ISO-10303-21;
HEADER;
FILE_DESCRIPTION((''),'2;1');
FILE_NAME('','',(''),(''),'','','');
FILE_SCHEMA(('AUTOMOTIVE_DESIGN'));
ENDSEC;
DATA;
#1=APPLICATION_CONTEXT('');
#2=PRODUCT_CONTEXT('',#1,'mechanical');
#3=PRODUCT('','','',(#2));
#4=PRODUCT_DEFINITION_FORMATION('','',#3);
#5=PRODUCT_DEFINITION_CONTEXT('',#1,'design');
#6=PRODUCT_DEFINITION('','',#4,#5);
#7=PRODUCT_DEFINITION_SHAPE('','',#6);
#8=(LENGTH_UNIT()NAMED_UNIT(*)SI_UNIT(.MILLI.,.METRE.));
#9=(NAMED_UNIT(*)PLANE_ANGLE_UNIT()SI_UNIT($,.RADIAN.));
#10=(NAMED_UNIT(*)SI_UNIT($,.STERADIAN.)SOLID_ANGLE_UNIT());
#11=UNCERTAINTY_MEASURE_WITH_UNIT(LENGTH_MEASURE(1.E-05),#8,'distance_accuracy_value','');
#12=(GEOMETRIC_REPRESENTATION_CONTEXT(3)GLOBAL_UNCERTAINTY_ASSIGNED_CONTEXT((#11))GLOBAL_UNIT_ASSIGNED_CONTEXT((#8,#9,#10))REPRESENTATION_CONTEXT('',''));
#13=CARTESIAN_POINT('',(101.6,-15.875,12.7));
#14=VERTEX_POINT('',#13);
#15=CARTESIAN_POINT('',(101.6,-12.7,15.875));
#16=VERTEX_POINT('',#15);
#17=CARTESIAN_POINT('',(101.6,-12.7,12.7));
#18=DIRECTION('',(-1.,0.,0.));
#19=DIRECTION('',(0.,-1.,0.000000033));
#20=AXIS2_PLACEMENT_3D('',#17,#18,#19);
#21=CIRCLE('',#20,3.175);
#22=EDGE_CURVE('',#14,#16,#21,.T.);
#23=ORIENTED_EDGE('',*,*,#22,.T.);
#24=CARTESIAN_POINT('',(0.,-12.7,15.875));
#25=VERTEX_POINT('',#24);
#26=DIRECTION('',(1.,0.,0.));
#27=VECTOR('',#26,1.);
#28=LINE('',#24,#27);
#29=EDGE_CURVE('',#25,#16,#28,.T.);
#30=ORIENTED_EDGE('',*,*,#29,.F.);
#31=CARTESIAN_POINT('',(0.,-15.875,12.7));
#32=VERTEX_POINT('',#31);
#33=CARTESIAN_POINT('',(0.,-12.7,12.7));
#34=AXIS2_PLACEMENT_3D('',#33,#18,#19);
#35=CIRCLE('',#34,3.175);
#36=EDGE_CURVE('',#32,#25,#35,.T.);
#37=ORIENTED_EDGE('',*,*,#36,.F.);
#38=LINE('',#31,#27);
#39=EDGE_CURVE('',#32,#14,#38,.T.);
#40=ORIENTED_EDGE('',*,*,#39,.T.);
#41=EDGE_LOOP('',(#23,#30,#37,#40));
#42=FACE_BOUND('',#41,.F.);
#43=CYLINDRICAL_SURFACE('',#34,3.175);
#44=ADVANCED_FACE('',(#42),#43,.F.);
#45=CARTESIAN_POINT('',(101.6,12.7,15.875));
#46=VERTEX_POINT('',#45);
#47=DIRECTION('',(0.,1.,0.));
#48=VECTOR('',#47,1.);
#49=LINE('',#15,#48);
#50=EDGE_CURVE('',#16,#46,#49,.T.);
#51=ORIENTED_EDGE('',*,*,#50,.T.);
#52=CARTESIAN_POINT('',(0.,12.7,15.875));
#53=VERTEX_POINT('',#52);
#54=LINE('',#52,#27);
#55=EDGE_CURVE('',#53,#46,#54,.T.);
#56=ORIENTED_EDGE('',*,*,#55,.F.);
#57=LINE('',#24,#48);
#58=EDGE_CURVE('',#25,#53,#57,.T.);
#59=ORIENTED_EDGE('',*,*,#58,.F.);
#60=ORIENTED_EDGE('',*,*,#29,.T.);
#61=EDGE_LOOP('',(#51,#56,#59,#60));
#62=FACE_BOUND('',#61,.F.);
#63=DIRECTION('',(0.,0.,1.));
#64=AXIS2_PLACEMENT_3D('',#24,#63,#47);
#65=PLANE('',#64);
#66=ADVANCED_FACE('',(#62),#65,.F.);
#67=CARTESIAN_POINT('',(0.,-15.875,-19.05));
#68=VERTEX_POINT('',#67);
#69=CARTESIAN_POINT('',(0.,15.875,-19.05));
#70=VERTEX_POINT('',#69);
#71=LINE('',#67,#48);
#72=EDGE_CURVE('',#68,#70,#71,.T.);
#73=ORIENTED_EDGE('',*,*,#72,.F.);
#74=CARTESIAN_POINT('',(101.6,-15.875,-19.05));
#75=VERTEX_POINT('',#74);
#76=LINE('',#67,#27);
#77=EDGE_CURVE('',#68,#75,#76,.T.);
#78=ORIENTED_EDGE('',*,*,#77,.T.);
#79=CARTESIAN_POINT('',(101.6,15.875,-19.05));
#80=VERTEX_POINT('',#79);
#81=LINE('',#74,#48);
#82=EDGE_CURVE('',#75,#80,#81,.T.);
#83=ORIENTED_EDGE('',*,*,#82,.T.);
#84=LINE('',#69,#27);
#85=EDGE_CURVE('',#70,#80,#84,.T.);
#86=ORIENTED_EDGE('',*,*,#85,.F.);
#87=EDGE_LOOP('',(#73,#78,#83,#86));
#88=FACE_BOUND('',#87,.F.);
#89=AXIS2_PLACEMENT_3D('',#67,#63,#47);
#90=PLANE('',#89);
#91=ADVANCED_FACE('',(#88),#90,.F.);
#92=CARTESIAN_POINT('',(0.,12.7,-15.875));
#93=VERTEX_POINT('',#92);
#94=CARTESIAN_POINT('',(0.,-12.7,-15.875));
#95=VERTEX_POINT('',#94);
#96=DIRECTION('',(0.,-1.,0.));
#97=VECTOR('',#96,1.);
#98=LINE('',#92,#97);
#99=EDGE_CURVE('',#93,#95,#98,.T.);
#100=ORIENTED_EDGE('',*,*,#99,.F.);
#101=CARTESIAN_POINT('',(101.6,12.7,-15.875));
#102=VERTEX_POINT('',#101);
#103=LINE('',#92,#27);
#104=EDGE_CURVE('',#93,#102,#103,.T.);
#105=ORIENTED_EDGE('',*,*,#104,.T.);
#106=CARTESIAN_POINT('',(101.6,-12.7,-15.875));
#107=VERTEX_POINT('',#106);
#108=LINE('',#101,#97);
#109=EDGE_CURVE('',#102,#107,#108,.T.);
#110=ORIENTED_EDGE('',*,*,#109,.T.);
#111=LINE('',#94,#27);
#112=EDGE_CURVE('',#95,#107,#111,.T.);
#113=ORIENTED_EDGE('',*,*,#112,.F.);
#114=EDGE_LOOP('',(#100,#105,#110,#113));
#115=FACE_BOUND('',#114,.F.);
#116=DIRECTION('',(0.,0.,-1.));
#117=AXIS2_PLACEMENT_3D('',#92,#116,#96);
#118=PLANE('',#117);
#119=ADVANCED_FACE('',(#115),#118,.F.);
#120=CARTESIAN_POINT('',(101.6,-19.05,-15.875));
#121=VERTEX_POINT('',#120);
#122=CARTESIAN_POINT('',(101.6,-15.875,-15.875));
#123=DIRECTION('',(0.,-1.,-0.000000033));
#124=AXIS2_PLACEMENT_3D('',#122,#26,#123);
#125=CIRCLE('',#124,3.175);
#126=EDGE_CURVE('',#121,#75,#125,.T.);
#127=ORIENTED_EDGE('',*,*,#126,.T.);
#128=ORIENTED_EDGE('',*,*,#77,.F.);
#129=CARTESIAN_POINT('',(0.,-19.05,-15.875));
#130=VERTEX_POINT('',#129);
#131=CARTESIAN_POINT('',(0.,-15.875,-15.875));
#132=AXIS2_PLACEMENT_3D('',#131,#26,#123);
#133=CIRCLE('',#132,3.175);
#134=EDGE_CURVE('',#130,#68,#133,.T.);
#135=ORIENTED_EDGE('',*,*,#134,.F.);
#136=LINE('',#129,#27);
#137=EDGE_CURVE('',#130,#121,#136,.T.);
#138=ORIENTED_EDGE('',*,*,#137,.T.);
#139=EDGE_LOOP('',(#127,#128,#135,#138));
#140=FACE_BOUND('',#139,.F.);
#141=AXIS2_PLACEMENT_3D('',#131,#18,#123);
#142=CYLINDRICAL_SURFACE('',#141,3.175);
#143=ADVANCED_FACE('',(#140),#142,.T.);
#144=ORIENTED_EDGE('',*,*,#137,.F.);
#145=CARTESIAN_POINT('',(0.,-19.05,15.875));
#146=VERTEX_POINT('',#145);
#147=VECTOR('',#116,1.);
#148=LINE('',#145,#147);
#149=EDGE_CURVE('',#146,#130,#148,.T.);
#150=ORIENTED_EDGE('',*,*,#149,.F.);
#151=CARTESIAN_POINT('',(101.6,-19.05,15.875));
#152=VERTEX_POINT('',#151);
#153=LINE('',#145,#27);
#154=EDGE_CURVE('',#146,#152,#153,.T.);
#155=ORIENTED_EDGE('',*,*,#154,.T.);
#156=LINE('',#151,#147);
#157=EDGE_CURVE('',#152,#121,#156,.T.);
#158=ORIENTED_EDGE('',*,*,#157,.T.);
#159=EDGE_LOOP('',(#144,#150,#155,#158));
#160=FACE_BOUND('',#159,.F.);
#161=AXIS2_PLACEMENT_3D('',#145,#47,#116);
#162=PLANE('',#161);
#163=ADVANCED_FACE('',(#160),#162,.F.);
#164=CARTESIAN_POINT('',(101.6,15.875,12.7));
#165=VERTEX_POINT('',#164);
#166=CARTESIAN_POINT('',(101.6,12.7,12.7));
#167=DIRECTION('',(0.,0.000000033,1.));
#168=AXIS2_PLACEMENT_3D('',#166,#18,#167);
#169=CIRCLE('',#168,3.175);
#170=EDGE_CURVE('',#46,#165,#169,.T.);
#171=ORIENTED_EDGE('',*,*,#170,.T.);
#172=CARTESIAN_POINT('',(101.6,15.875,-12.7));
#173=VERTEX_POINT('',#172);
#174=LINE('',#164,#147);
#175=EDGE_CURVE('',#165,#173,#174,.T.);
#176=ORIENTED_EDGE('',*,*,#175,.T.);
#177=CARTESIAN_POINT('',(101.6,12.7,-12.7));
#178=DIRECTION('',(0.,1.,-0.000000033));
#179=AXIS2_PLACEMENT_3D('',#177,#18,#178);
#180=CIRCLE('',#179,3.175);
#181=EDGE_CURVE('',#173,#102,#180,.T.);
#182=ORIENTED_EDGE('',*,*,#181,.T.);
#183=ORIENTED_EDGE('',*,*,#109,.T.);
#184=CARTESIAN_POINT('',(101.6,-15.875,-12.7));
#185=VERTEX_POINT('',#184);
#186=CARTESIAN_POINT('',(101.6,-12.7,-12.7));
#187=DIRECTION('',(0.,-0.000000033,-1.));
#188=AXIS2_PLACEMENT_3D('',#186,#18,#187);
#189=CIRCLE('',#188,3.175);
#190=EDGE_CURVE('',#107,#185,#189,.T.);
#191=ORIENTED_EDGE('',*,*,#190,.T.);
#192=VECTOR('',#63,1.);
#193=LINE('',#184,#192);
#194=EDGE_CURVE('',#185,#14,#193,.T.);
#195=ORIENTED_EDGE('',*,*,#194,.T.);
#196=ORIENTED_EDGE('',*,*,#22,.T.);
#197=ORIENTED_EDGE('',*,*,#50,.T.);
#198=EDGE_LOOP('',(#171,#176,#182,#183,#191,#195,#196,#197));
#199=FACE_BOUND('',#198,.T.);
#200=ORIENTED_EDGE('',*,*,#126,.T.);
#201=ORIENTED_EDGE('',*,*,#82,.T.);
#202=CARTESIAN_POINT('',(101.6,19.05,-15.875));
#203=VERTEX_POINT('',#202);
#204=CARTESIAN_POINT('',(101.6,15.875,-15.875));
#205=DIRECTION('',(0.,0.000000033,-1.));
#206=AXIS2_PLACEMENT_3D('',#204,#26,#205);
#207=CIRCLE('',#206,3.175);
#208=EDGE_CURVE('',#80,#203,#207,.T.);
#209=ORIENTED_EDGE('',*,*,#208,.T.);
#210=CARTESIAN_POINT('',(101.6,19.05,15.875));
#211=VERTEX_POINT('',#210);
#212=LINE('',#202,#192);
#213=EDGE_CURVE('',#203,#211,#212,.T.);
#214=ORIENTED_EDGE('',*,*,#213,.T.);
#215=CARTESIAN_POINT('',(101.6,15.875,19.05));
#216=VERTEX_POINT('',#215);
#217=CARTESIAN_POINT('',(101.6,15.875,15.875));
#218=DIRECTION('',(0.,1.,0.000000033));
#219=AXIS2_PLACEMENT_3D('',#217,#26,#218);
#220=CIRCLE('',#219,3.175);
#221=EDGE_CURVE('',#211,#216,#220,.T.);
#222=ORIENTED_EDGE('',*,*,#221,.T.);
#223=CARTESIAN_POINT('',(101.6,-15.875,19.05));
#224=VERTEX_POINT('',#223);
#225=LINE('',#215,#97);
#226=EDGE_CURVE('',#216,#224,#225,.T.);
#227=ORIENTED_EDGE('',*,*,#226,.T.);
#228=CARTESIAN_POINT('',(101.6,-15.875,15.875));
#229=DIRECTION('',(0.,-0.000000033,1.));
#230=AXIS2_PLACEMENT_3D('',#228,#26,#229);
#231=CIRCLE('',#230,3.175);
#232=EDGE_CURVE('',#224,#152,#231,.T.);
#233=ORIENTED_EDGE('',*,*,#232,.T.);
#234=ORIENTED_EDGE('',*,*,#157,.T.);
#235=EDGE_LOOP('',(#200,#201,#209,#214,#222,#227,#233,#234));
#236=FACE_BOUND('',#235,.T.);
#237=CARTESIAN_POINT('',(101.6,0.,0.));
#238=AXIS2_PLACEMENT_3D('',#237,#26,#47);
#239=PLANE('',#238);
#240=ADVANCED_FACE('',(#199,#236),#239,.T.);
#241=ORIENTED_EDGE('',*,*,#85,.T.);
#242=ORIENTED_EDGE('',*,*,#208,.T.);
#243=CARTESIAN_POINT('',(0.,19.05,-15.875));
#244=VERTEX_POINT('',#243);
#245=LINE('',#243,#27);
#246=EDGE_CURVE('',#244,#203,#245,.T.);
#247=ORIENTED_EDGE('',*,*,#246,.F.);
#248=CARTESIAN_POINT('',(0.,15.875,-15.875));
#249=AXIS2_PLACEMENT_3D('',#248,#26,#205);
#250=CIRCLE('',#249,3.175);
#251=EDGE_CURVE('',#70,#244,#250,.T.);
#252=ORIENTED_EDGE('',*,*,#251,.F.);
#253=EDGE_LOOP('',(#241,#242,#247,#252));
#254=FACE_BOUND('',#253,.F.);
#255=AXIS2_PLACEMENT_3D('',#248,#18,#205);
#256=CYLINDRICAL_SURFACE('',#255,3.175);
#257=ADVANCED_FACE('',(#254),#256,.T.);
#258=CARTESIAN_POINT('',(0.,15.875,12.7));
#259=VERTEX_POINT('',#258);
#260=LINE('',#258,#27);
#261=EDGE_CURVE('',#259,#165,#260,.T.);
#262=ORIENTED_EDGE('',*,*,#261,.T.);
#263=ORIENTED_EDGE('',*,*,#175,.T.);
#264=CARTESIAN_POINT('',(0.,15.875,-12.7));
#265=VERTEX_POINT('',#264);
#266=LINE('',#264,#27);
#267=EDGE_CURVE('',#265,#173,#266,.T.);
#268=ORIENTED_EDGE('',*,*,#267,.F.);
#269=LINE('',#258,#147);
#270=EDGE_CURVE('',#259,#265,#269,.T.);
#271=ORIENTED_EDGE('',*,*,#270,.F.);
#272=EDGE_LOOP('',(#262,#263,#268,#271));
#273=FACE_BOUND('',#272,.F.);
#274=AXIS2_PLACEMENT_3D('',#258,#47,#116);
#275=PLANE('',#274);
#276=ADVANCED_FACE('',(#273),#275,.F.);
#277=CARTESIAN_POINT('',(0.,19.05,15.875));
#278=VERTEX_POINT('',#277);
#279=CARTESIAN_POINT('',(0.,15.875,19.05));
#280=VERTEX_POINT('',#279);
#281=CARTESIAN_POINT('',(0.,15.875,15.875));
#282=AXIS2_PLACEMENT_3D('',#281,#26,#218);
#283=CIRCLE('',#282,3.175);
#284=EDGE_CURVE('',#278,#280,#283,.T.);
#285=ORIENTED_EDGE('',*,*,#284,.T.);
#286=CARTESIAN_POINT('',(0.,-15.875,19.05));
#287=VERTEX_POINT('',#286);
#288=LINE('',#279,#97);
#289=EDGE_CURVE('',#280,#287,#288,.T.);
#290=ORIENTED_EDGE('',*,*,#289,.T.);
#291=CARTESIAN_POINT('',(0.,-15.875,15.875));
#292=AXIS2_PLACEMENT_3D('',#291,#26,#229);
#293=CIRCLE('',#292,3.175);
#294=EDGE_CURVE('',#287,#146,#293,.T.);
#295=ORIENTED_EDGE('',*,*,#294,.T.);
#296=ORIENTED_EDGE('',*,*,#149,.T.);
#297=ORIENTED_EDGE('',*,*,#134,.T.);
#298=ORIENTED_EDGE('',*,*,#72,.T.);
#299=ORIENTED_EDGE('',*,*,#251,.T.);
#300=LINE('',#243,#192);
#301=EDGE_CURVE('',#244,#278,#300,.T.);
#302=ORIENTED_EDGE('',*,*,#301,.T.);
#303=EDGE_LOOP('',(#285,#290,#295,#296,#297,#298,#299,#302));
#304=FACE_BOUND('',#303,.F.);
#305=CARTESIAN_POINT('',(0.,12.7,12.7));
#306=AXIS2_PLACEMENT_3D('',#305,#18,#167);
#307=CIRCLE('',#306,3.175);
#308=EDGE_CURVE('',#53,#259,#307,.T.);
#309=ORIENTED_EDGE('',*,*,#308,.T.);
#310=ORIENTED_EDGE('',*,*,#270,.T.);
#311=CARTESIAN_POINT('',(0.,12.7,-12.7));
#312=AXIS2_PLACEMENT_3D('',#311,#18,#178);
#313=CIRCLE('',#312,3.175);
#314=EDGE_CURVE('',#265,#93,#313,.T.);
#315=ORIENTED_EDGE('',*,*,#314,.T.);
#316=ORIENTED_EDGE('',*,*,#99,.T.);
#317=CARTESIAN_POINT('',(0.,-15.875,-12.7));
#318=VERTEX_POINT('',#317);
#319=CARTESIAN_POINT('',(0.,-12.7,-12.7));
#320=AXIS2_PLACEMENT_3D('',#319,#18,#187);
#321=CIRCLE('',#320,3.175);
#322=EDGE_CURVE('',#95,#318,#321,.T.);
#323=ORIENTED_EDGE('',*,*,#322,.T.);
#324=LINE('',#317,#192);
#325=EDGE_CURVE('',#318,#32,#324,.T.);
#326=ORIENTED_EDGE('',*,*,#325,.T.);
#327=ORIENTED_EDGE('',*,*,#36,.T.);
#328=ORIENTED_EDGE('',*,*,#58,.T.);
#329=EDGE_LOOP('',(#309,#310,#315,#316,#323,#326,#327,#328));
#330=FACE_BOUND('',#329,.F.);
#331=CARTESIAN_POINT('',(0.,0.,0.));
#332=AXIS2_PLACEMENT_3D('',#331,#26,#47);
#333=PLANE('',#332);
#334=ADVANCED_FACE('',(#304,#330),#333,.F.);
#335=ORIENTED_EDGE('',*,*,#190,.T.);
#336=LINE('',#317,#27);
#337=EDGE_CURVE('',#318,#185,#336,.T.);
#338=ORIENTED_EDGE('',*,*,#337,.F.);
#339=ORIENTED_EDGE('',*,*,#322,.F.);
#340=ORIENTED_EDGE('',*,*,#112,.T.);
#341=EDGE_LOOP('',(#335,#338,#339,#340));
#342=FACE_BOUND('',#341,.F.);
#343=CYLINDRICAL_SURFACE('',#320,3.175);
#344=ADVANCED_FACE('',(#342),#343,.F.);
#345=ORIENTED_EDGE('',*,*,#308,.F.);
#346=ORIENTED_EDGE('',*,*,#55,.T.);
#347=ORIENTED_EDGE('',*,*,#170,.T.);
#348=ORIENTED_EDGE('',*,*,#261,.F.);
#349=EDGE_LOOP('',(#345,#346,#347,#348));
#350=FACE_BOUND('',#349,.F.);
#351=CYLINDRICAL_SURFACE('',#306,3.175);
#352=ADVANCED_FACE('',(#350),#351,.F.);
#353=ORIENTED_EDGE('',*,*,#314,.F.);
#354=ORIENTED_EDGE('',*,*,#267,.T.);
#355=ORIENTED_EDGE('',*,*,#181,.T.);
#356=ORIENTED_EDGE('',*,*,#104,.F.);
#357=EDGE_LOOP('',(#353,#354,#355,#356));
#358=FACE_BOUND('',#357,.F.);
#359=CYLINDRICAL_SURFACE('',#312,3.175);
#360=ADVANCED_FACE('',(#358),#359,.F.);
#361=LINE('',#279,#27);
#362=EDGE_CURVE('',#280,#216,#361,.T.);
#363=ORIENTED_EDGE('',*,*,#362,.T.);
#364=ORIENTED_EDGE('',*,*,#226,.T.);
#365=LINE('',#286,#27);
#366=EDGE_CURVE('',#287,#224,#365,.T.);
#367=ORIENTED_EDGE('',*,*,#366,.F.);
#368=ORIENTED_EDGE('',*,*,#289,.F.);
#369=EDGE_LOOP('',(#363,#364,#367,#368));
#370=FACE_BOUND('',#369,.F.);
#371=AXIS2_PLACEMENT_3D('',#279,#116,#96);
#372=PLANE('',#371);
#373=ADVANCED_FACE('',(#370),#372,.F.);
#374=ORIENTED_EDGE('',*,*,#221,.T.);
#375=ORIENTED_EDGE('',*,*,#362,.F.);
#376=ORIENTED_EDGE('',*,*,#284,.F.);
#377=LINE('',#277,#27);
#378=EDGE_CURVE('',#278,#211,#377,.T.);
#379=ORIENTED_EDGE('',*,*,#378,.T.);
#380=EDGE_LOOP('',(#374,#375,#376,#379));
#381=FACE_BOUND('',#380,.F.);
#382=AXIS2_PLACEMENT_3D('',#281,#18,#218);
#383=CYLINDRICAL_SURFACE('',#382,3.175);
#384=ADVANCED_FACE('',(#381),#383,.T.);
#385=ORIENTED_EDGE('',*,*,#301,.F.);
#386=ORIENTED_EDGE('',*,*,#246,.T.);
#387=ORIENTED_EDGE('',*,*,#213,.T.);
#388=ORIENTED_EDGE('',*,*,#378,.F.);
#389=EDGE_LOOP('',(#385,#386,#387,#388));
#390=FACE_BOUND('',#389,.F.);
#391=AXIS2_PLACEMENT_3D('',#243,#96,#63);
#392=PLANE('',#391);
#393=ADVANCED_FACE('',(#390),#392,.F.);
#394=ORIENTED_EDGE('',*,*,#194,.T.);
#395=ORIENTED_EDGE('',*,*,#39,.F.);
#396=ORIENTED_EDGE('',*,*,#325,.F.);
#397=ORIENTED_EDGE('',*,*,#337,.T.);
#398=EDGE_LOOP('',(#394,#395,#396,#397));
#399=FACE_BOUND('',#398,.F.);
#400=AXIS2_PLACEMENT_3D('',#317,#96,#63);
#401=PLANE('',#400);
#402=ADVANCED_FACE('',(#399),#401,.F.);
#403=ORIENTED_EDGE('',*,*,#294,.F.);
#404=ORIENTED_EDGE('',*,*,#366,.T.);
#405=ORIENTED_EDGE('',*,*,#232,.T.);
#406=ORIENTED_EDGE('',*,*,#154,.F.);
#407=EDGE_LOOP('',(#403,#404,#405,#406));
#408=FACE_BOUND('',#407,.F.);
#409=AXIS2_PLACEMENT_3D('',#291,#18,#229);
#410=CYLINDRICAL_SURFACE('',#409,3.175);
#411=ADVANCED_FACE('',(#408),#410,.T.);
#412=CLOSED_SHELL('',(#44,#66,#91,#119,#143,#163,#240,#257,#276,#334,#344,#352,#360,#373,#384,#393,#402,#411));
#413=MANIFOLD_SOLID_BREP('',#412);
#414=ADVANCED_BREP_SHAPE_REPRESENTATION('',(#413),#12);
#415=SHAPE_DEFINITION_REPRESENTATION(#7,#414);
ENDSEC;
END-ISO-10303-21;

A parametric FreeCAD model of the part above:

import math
import FreeCAD as App
import Part
import Sketcher
Q = App.Units.Quantity

doc = App.newDocument("Part")
body = doc.addObject("PartDesign::Body", "Body")

# Sketch on YZ plane
sketch1 = body.newObject("Sketcher::SketchObject", "Sketch")
sketch1.AttachmentSupport = (doc.getObject("YZ_Plane"), [""])
sketch1.MapMode = "FlatFace"
sketch1.addGeometry([
    Part.ArcOfCircle(Part.Circle(App.Vector(15.9, 15.9, 0), App.Vector(0, 0, 1), 3.2), math.radians(0), math.radians(90)),  # 0
    Part.LineSegment(App.Vector(15.9, 19.1, 0), App.Vector(-15.9, 19.1, 0)),  # 1
    Part.ArcOfCircle(Part.Circle(App.Vector(-15.9, 15.9, 0), App.Vector(0, 0, 1), 3.2), math.radians(90), math.radians(180)),  # 2
    Part.LineSegment(App.Vector(-19.1, 15.9, 0), App.Vector(-19.1, -15.9, 0)),  # 3
    Part.ArcOfCircle(Part.Circle(App.Vector(-15.9, -15.9, 0), App.Vector(0, 0, 1), 3.2), math.radians(-180), math.radians(-90)),  # 4
    Part.LineSegment(App.Vector(-15.9, -19.1, 0), App.Vector(15.9, -19.1, 0)),  # 5
    Part.ArcOfCircle(Part.Circle(App.Vector(15.9, -15.9, 0), App.Vector(0, 0, 1), 3.2), math.radians(-90), math.radians(0)),  # 6
    Part.LineSegment(App.Vector(19.1, -15.9, 0), App.Vector(19.1, 15.9, 0)),  # 7
    Part.ArcOfCircle(Part.Circle(App.Vector(-12.7, 12.7, 0), App.Vector(0, 0, 1), 3.2), math.radians(90), math.radians(180)),  # 8
    Part.LineSegment(App.Vector(-12.7, 15.9, 0), App.Vector(12.7, 15.9, 0)),  # 9
    Part.ArcOfCircle(Part.Circle(App.Vector(12.7, 12.7, 0), App.Vector(0, 0, 1), 3.2), math.radians(0), math.radians(90)),  # 10
    Part.LineSegment(App.Vector(15.9, 12.7, 0), App.Vector(15.9, -12.7, 0)),  # 11
    Part.ArcOfCircle(Part.Circle(App.Vector(12.7, -12.7, 0), App.Vector(0, 0, 1), 3.2), math.radians(-90), math.radians(0)),  # 12
    Part.LineSegment(App.Vector(12.7, -15.9, 0), App.Vector(-12.7, -15.9, 0)),  # 13
    Part.ArcOfCircle(Part.Circle(App.Vector(-12.7, -12.7, 0), App.Vector(0, 0, 1), 3.2), math.radians(-180), math.radians(-90)),  # 14
    Part.LineSegment(App.Vector(-15.9, -12.7, 0), App.Vector(-15.9, 12.7, 0)),  # 15
], False)
sketch1.addConstraint([
    Sketcher.Constraint("Tangent", 0, 2, 1, 1),
    Sketcher.Constraint("Tangent", 1, 2, 2, 1),
    Sketcher.Constraint("Tangent", 2, 2, 3, 1),
    Sketcher.Constraint("Tangent", 3, 2, 4, 1),
    Sketcher.Constraint("Tangent", 4, 2, 5, 1),
    Sketcher.Constraint("Tangent", 5, 2, 6, 1),
    Sketcher.Constraint("Tangent", 6, 2, 7, 1),
    Sketcher.Constraint("Tangent", 7, 2, 0, 1),
    Sketcher.Constraint("Tangent", 8, 1, 9, 1),
    Sketcher.Constraint("Tangent", 9, 2, 10, 2),
    Sketcher.Constraint("Tangent", 10, 1, 11, 1),
    Sketcher.Constraint("Tangent", 11, 2, 12, 2),
    Sketcher.Constraint("Tangent", 12, 1, 13, 1),
    Sketcher.Constraint("Tangent", 13, 2, 14, 2),
    Sketcher.Constraint("Tangent", 14, 1, 15, 1),
    Sketcher.Constraint("Tangent", 15, 2, 8, 2),
    Sketcher.Constraint("Horizontal", 1),
    Sketcher.Constraint("Vertical", 3),
    Sketcher.Constraint("Horizontal", 5),
    Sketcher.Constraint("Vertical", 7),
    Sketcher.Constraint("Horizontal", 9),
    Sketcher.Constraint("Vertical", 11),
    Sketcher.Constraint("Horizontal", 13),
    Sketcher.Constraint("Vertical", 15),
    Sketcher.Constraint("Equal", 0, 2),
    Sketcher.Constraint("Equal", 2, 4),
    Sketcher.Constraint("Equal", 4, 6),
    Sketcher.Constraint("Equal", 6, 8),
    Sketcher.Constraint("Equal", 8, 10),
    Sketcher.Constraint("Equal", 10, 12),
    Sketcher.Constraint("Equal", 12, 14),
    Sketcher.Constraint("Symmetric", 0, 3, 4, 3, -1, 1),
    Sketcher.Constraint("Symmetric", 8, 3, 12, 3, -1, 1),
    Sketcher.Constraint("Horizontal", 7, 2, 8, 1),
    Sketcher.Constraint("Vertical", 5, 2, 10, 1),
    Sketcher.Constraint("Equal", 5, 3),
    Sketcher.Constraint("DistanceX", 9, 1, 9, 2, Q("1 in")),
    Sketcher.Constraint("Radius", 0, Q("0.125 in")),
])
pad1 = body.newObject("PartDesign::Pad", "Pad")
pad1.Profile = sketch1
pad1.Length = Q("4 in")

doc.recompute()
